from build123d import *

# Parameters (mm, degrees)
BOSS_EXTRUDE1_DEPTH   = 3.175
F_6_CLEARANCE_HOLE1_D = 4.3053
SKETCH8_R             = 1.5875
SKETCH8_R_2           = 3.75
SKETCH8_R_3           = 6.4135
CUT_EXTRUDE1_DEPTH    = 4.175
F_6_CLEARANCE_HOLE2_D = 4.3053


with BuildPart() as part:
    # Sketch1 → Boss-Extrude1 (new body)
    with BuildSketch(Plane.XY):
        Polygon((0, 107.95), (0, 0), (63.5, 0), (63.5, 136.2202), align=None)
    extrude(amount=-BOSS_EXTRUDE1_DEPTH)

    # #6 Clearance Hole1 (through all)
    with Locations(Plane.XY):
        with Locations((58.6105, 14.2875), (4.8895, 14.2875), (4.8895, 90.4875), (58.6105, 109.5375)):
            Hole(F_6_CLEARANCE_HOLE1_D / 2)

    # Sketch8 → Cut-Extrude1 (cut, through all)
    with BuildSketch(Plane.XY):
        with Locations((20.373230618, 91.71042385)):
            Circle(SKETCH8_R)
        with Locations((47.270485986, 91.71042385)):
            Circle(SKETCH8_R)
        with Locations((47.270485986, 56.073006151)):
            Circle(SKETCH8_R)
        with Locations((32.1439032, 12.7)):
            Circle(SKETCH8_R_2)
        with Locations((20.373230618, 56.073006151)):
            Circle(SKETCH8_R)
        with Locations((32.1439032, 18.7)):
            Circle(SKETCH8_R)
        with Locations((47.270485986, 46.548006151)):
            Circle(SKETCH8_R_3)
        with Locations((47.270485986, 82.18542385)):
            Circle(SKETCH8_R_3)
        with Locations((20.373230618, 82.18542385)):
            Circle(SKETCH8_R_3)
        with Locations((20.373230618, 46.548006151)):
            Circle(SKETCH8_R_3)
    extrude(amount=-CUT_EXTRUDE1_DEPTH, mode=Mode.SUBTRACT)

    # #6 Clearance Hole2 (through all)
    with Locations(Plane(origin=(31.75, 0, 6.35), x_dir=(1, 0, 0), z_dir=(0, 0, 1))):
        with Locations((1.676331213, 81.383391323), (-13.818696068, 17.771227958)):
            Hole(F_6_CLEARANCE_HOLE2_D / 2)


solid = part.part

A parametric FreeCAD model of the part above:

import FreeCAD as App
import Part
import Sketcher
Q = App.Units.Quantity

doc = App.newDocument("Part")
body = doc.addObject("PartDesign::Body", "Body")

# Sketch on XY plane
sketch1 = body.newObject("Sketcher::SketchObject", "Sketch")
sketch1.AttachmentSupport = (doc.getObject("XY_Plane"), [""])
sketch1.MapMode = "FlatFace"
sketch1.addGeometry([
    Part.LineSegment(App.Vector(0, 108, 0), App.Vector(0, 0, 0)),
    Part.LineSegment(App.Vector(0, 0, 0), App.Vector(64, 0, 0)),
    Part.LineSegment(App.Vector(64, 0, 0), App.Vector(64, 136, 0)),
    Part.LineSegment(App.Vector(64, 136, 0), App.Vector(0, 108, 0)),
], False)
sketch1.addConstraint([
    Sketcher.Constraint("Coincident", 0, 2, 1, 1),
    Sketcher.Constraint("Coincident", 1, 2, 2, 1),
    Sketcher.Constraint("Coincident", 2, 2, 3, 1),
    Sketcher.Constraint("Coincident", 3, 2, 0, 1),
    Sketcher.Constraint("Vertical", 0),
    Sketcher.Constraint("Horizontal", 1),
    Sketcher.Constraint("Vertical", 2),
    Sketcher.Constraint("Coincident", 0, 2, -1, 1),
    Sketcher.Constraint("DistanceX", 1, 1, 1, 2, Q("2.5 in")),
    Sketcher.Constraint("DistanceY", 0, 2, 0, 1, Q("4.25 in")),
    Sketcher.Constraint("DistanceY", 2, 1, 2, 2, Q("5.363 in")),
])
pad1 = body.newObject("PartDesign::Pad", "Pad")
pad1.Profile = sketch1
pad1.Length = Q("0.125 in")
pad1.Reversed = True

# Sketch on XY plane
sketch2 = body.newObject("Sketcher::SketchObject", "Sketch001")
sketch2.AttachmentSupport = (doc.getObject("XY_Plane"), [""])
sketch2.MapMode = "FlatFace"
sketch2.addGeometry([
    Part.Circle(App.Vector(58.6, 14.3, 0), App.Vector(0, 0, 1), 2.2),
    Part.Circle(App.Vector(4.9, 14.3, 0), App.Vector(0, 0, 1), 2.2),
    Part.Circle(App.Vector(4.9, 90.5, 0), App.Vector(0, 0, 1), 2.2),
    Part.Circle(App.Vector(58.6, 109.5, 0), App.Vector(0, 0, 1), 2.2),
], False)
sketch2.addConstraint([
    Sketcher.Constraint("Equal", 0, 1),
    Sketcher.Constraint("Equal", 1, 2),
    Sketcher.Constraint("Equal", 2, 3),
    Sketcher.Constraint("Horizontal", 0, 3, 1, 3),
    Sketcher.Constraint("Vertical", 1, 3, 2, 3),
    Sketcher.Constraint("Vertical", 0, 3, 3, 3),
    Sketcher.Constraint("DistanceY", 1, 3, 2, 3, Q("3 in")),
    Sketcher.Constraint("Diameter", 0, Q("0.1695 in")),
    Sketcher.Constraint("DistanceY", 2, 3, 3, 3, Q("0.75 in")),
    Sketcher.Constraint("DistanceY", -1, 1, 0, 3, Q("0.5625 in")),
    Sketcher.Constraint("DistanceX", 1, 3, 0, 3, Q("2.115 in")),
    Sketcher.Constraint("DistanceX", -1, 1, 0, 3, Q("2.3075 in")),
])
doc.recompute()
hole = body.newObject("PartDesign::Hole", "Hole")
hole.Profile = sketch2
hole.ThreadType = "None"
hole.Diameter = Q("0.1695 in")
hole.DepthType = "ThroughAll"

# Sketch on XY plane
sketch3 = body.newObject("Sketcher::SketchObject", "Sketch002")
sketch3.AttachmentSupport = (doc.getObject("XY_Plane"), [""])
sketch3.MapMode = "FlatFace"
sketch3.addGeometry([
    Part.Circle(App.Vector(20.4, 91.7, 0), App.Vector(0, 0, 1), 1.6),  # 0
    Part.Circle(App.Vector(47.3, 91.7, 0), App.Vector(0, 0, 1), 1.6),  # 1
    Part.Circle(App.Vector(47.3, 56.1, 0), App.Vector(0, 0, 1), 1.6),  # 2
    Part.Circle(App.Vector(32.1, 12.7, 0), App.Vector(0, 0, 1), 3.8),  # 3
    Part.Circle(App.Vector(20.4, 56.1, 0), App.Vector(0, 0, 1), 1.6),  # 4
    Part.Circle(App.Vector(32.1, 18.7, 0), App.Vector(0, 0, 1), 1.6),  # 5
    Part.Circle(App.Vector(47.3, 46.5, 0), App.Vector(0, 0, 1), 6.4),  # 6
    Part.Circle(App.Vector(47.3, 82.2, 0), App.Vector(0, 0, 1), 6.4),  # 7
    Part.Circle(App.Vector(20.4, 82.2, 0), App.Vector(0, 0, 1), 6.4),  # 8
    Part.Circle(App.Vector(20.4, 46.5, 0), App.Vector(0, 0, 1), 6.4),  # 9
], False)
sketch3.addConstraint([
    Sketcher.Constraint("Equal", 0, 1),
    Sketcher.Constraint("Equal", 1, 2),
    Sketcher.Constraint("Equal", 2, 4),
    Sketcher.Constraint("Equal", 4, 5),
    Sketcher.Constraint("Equal", 6, 7),
    Sketcher.Constraint("Equal", 7, 8),
    Sketcher.Constraint("Equal", 8, 9),
    Sketcher.Constraint("Horizontal", 0, 3, 1, 3),
    Sketcher.Constraint("Horizontal", 2, 3, 4, 3),
    Sketcher.Constraint("Horizontal", 7, 3, 8, 3),
    Sketcher.Constraint("Horizontal", 6, 3, 9, 3),
    Sketcher.Constraint("Vertical", 1, 3, 2, 3),
    Sketcher.Constraint("Vertical", 0, 3, 4, 3),
    Sketcher.Constraint("Vertical", 3, 3, 5, 3),
    Sketcher.Constraint("Vertical", 2, 3, 6, 3),
    Sketcher.Constraint("Vertical", 6, 3, 7, 3),
    Sketcher.Constraint("Vertical", 4, 3, 8, 3),
    Sketcher.Constraint("Vertical", 8, 3, 9, 3),
    Sketcher.Constraint("Diameter", 0, Q("0.125 in")),
    Sketcher.Constraint("Diameter", 6, Q("0.505 in")),
    Sketcher.Constraint("DistanceY", -1, 1, 3, 3, Q("0.5 in")),
    Sketcher.Constraint("Diameter", 3, 7.5),
    Sketcher.Constraint("DistanceY", 6, 3, 2, 3, Q("0.375 in")),
    Sketcher.Constraint("DistanceY", 7, 3, 1, 3, Q("0.375 in")),
    Sketcher.Constraint("DistanceY", -1, 1, 5, 3, 18.7),
    Sketcher.Constraint("DistanceX", -1, 1, 0, 3, 20.373231),
    Sketcher.Constraint("DistanceY", -1, 1, 0, 3, 91.710424),
    Sketcher.Constraint("DistanceX", -1, 1, 1, 3, 47.270486),
    Sketcher.Constraint("DistanceY", -1, 1, 2, 3, 56.073006),
    Sketcher.Constraint("DistanceX", -1, 1, 3, 3, 32.143903),
])
pocket1 = body.newObject("PartDesign::Pocket", "Pocket")
pocket1.Profile = sketch3
pocket1.Type = "ThroughAll"

# Sketch on XY plane
sketch4 = body.newObject("Sketcher::SketchObject", "Sketch003")
sketch4.AttachmentSupport = (doc.getObject("XY_Plane"), [""])
sketch4.MapMode = "FlatFace"
sketch4.AttachmentOffset = App.Placement(App.Vector(0, 0, 0.25 * 25.4), App.Rotation())
sketch4.addGeometry([
    Part.Circle(App.Vector(33.4, 81.4, 0), App.Vector(0, 0, 1), 2.2),
    Part.Circle(App.Vector(17.9, 17.8, 0), App.Vector(0, 0, 1), 2.2),
], False)
sketch4.addConstraint([
    Sketcher.Constraint("Equal", 0, 1),
    Sketcher.Constraint("Diameter", 0, Q("0.1695 in")),
    Sketcher.Constraint("DistanceX", -1, 1, 0, 3, 33.426331),
    Sketcher.Constraint("DistanceY", -1, 1, 0, 3, 81.383391),
    Sketcher.Constraint("DistanceX", -1, 1, 1, 3, 17.931304),
    Sketcher.Constraint("DistanceY", -1, 1, 1, 3, 17.771228),
])
doc.recompute()
hole2 = body.newObject("PartDesign::Hole", "Hole001")
hole2.Profile = sketch4
hole2.ThreadType = "None"
hole2.Diameter = Q("0.1695 in")
hole2.DepthType = "ThroughAll"

doc.recompute()
